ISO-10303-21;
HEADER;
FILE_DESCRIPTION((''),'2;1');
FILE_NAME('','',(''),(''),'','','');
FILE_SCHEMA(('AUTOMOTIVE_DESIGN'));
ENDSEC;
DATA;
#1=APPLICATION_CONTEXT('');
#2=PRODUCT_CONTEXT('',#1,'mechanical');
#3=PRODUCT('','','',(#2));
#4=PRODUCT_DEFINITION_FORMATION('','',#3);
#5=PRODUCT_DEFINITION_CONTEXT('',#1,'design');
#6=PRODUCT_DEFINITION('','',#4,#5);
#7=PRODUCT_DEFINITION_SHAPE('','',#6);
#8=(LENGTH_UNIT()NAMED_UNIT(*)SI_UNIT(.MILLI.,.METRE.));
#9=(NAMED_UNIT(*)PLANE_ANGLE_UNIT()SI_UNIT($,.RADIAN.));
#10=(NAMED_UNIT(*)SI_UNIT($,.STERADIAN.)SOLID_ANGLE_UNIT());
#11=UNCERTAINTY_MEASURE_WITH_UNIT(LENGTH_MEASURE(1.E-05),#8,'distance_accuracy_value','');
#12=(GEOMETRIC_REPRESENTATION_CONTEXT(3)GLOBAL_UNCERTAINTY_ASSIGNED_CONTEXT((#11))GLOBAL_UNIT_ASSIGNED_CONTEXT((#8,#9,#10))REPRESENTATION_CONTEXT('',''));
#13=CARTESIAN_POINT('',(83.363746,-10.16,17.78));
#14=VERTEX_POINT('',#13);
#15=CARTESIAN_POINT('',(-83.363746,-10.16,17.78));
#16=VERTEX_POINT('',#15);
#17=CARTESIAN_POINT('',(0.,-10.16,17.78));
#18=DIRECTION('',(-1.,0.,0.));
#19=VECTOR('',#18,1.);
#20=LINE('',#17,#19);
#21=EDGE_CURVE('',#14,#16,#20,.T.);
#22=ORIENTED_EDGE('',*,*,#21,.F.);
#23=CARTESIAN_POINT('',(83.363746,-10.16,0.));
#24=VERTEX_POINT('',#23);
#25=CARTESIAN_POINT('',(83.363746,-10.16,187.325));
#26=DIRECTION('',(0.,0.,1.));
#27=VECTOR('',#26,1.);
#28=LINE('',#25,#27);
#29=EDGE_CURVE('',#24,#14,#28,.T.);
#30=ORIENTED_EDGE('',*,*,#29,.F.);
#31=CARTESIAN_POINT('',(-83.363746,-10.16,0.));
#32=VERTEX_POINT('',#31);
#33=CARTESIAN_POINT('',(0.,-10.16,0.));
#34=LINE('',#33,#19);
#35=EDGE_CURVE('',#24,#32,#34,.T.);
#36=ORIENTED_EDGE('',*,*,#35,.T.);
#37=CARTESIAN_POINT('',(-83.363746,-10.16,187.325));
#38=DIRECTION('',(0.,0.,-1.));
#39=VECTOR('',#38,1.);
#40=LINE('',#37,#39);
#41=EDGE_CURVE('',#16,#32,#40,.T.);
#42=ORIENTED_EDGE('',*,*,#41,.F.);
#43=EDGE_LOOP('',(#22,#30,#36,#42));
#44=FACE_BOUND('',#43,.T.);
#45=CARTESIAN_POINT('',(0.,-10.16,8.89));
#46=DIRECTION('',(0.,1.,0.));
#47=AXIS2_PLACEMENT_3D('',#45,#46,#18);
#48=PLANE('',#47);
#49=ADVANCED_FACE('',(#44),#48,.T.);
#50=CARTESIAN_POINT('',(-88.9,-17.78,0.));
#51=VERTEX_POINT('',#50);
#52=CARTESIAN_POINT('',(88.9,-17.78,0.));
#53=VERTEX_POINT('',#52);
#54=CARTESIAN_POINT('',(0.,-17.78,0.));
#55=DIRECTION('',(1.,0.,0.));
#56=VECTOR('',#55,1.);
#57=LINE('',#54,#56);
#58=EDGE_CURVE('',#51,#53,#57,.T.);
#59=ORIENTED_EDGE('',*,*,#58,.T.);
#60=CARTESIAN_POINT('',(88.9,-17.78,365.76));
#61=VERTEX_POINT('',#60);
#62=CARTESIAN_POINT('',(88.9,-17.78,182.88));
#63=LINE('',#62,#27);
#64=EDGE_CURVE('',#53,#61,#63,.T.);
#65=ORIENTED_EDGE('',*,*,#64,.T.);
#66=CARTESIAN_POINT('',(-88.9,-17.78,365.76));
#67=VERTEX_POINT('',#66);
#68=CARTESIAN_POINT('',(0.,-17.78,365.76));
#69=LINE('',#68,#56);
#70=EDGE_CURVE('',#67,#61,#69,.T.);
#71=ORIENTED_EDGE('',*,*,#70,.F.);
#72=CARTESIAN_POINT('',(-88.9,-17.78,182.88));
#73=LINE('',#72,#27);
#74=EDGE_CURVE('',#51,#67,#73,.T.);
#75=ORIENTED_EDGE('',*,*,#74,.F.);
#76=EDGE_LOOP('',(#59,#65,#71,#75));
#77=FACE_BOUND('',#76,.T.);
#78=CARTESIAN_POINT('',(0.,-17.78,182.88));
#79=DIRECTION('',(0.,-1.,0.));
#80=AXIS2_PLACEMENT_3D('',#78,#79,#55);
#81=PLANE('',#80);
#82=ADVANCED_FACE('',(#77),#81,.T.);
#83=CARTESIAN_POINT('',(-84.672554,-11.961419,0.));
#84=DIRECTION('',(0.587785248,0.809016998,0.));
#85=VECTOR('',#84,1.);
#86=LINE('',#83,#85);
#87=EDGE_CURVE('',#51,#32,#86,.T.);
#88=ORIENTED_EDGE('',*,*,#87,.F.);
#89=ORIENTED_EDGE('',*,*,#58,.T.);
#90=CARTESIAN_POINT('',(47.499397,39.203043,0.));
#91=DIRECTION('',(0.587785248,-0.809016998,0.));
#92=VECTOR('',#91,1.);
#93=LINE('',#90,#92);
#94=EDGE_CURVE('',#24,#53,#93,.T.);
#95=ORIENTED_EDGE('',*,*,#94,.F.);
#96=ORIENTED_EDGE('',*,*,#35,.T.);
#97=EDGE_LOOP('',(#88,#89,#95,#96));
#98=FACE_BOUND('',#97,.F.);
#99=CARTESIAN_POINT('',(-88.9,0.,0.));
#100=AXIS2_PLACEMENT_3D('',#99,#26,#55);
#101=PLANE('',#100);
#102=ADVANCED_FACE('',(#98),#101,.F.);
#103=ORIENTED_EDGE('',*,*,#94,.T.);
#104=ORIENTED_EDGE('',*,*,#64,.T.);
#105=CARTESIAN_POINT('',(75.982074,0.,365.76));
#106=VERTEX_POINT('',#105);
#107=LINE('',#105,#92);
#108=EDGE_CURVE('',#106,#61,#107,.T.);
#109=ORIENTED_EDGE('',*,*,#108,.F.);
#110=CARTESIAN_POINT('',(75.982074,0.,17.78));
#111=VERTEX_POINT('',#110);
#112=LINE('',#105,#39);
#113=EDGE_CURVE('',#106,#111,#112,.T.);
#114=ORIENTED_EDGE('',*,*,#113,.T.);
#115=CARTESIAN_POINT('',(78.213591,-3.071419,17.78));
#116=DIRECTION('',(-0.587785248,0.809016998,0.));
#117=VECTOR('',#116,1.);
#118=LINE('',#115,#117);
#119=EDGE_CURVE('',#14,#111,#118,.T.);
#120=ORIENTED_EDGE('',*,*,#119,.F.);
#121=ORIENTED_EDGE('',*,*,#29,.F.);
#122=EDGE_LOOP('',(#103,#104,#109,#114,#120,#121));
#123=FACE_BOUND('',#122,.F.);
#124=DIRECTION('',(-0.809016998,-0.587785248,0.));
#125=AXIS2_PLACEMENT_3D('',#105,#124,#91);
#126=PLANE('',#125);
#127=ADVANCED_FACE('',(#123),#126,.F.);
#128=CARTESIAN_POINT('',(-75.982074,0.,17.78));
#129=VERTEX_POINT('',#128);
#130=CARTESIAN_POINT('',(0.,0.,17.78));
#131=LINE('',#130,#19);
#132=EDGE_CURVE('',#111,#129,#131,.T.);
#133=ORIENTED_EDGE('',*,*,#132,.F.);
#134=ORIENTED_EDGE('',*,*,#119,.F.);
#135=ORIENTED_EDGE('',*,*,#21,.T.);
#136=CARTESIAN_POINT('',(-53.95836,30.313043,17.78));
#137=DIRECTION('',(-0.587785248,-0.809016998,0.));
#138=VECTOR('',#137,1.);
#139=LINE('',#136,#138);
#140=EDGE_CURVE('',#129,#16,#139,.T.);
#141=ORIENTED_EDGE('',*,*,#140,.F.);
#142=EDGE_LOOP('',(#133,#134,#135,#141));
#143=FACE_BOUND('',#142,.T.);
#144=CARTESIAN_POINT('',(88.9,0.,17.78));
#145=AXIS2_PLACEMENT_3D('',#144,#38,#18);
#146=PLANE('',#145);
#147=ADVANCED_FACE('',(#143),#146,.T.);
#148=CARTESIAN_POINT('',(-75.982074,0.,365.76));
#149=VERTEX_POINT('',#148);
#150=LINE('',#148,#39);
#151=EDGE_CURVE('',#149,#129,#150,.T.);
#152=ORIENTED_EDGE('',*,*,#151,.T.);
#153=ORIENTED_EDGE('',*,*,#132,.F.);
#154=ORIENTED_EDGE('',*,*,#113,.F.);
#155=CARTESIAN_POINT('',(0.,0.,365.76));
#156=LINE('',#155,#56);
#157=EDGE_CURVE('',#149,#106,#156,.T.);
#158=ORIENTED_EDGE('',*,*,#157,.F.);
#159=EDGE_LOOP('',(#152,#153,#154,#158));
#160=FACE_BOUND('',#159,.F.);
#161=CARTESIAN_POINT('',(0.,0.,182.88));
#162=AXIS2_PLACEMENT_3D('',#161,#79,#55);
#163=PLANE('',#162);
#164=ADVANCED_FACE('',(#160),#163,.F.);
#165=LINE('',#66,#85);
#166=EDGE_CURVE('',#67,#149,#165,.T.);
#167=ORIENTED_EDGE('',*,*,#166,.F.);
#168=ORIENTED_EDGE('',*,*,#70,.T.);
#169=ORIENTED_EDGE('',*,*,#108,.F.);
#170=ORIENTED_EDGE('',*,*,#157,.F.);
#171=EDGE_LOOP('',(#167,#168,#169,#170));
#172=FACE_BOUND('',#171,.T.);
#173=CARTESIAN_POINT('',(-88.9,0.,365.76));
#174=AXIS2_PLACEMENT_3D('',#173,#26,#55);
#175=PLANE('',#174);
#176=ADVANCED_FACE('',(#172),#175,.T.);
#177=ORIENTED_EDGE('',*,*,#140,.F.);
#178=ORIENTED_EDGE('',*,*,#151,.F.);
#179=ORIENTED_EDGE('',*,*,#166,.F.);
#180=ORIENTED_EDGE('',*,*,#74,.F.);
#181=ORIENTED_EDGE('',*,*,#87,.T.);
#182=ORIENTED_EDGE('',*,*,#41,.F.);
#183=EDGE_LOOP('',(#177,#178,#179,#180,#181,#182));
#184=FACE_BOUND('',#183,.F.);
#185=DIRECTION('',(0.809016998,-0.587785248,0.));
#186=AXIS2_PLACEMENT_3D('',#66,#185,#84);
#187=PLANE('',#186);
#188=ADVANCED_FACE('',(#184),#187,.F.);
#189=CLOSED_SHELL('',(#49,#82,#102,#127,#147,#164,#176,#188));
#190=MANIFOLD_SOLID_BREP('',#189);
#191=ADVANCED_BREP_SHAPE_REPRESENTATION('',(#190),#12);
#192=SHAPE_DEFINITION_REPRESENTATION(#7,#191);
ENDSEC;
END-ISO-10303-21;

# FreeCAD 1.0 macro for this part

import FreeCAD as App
import Part
import Sketcher
from FreeCAD import Vector
Q = App.Units.Quantity


def add_polygon(sketch, points):
    """Adds a closed chain of lines whose ends are joined by coincident constraints."""
    first, n = sketch.GeometryCount, len(points)
    for a, b in zip(points, points[1:] + points[:1]):
        sketch.addGeometry(Part.LineSegment(App.Vector(*a, 0), App.Vector(*b, 0)), False)
    for i in range(n):
        sketch.addConstraint(Sketcher.Constraint("Coincident", first + i, 2, first + (i + 1) % n, 1))

doc = App.newDocument("Part")
body = doc.addObject("PartDesign::Body", "Body")

sketch1 = body.newObject("Sketcher::SketchObject", "Sketch")
sketch1.AttachmentSupport = (doc.getObject("XZ_Plane"), [""])
sketch1.MapMode = "FlatFace"
add_polygon(sketch1, [(-88.9, 365.76), (-88.9, 0), (88.9, 0), (88.9, 365.76)])
sketch1.addConstraint(Sketcher.Constraint("Vertical", 0))
sketch1.addConstraint(Sketcher.Constraint("Horizontal", 1))
sketch1.addConstraint(Sketcher.Constraint("Vertical", 2))
sketch1.addConstraint(Sketcher.Constraint("Horizontal", 3))
sketch1.addConstraint(Sketcher.Constraint("Symmetric", 0, 2, 1, 2, -1, 1))
sketch1.addConstraint(Sketcher.Constraint("DistanceX", 1, 1, 1, 2, Q("7 in")))
sketch1.addConstraint(Sketcher.Constraint("DistanceY", 0, 2, 0, 1, Q("14.4 in")))
pad1 = body.newObject("PartDesign::Pad", "Pad")
pad1.Profile = sketch1
pad1.Length = Q("0.7 in")

sketch2 = body.newObject("Sketcher::SketchObject", "Sketch001")
sketch2.AttachmentSupport = (doc.getObject("XZ_Plane"), [""])
sketch2.MapMode = "FlatFace"
add_polygon(sketch2, [(88.9, 17.78), (88.9, 0), (-88.9, 0), (-88.9, 17.78)])
sketch2.addConstraint(Sketcher.Constraint("Vertical", 0))
sketch2.addConstraint(Sketcher.Constraint("Horizontal", 1))
sketch2.addConstraint(Sketcher.Constraint("Vertical", 2))
sketch2.addConstraint(Sketcher.Constraint("Horizontal", 3))
sketch2.addConstraint(Sketcher.Constraint("Symmetric", 0, 2, 1, 2, -1, 1))
sketch2.addConstraint(Sketcher.Constraint("DistanceX", 1, 2, 1, 1, Q("7 in")))
sketch2.addConstraint(Sketcher.Constraint("DistanceY", 0, 2, 0, 1, Q("0.7 in")))
pocket1 = body.newObject("PartDesign::Pocket", "Pocket")
pocket1.Profile = sketch2
pocket1.Length = Q("0.4 in")
pocket1.Reversed = True

sketch3 = body.newObject("Sketcher::SketchObject", "Sketch002")
sketch3.AttachmentSupport = (doc.getObject("XY_Plane"), [""])
sketch3.MapMode = "FlatFace"
sketch3.AttachmentOffset = App.Placement(Vector(0, 0, 14.4 * 25.4), App.Rotation())
add_polygon(sketch3, [(-88.9, 0), (-88.9, -17.78), (-75.982074, 0)])
add_polygon(sketch3, [(75.982074, 0), (88.9, -17.78), (88.9, 0)])
sketch3.addConstraint(Sketcher.Constraint("Vertical", 0))
sketch3.addConstraint(Sketcher.Constraint("Horizontal", 2))
sketch3.addConstraint(Sketcher.Constraint("Vertical", 4))
sketch3.addConstraint(Sketcher.Constraint("Horizontal", 5))
sketch3.addConstraint(Sketcher.Constraint("Symmetric", 2, 2, 4, 2, -1, 1))
sketch3.addConstraint(Sketcher.Constraint("Symmetric", 1, 2, 5, 2, -2))
sketch3.addConstraint(Sketcher.Constraint("Horizontal", 0, 2, 3, 2))
sketch3.addConstraint(Sketcher.Constraint("DistanceY", 0, 2, 0, 1, Q("0.7 in")))
sketch3.addConstraint(Sketcher.Constraint("Angle", 1, Q("54 deg")))
sketch3.addConstraint(Sketcher.Constraint("DistanceX", 0, 2, 3, 2, Q("7 in")))
pocket2 = body.newObject("PartDesign::Pocket", "Pocket001")
pocket2.Profile = sketch3
pocket2.Type = "ThroughAll"

doc.recompute()
